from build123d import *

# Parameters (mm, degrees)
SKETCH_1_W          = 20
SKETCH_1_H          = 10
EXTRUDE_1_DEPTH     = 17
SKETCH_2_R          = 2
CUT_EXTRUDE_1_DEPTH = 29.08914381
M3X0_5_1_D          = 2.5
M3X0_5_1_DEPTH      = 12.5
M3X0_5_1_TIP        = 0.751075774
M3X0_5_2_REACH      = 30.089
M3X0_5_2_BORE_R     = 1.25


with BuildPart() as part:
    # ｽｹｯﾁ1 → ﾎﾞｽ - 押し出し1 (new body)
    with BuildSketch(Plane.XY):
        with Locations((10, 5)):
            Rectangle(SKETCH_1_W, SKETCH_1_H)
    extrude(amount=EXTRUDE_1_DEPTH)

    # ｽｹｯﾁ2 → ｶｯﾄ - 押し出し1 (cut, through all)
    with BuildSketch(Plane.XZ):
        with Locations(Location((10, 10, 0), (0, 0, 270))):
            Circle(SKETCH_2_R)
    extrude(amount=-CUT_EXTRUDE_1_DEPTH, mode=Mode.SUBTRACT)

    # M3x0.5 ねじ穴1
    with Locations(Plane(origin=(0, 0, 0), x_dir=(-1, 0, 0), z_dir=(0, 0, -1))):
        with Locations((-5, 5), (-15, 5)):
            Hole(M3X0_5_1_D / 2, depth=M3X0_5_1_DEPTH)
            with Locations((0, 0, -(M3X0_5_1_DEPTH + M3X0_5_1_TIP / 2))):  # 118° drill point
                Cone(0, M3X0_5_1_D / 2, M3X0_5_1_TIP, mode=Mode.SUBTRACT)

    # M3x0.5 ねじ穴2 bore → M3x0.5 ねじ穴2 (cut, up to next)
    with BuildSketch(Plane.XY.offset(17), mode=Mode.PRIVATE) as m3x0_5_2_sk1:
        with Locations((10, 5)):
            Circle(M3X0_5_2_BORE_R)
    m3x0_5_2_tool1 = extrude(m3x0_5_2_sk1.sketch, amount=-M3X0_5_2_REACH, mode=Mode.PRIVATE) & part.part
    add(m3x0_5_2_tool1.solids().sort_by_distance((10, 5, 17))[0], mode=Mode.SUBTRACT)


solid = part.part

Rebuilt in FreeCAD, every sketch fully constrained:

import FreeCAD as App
import Part
import Sketcher


def add_polygon(sketch, points):
    """Adds a closed chain of lines whose ends are joined by coincident constraints."""
    first, n = sketch.GeometryCount, len(points)
    for a, b in zip(points, points[1:] + points[:1]):
        sketch.addGeometry(Part.LineSegment(App.Vector(*a, 0), App.Vector(*b, 0)), False)
    for i in range(n):
        sketch.addConstraint(Sketcher.Constraint("Coincident", first + i, 2, first + (i + 1) % n, 1))

doc = App.newDocument("Part")
body = doc.addObject("PartDesign::Body", "Body")

# Sketch on XY plane
sketch1 = doc.addObject("Sketcher::SketchObject", "Sketch")
body.addObject(sketch1)
sketch1.AttachmentSupport = (doc.XY_Plane, [""])
sketch1.MapMode = "FlatFace"
add_polygon(sketch1, [(0, 10), (0, 0), (20, 0), (20, 10)])  # lines 0-3
sketch1.addConstraint(Sketcher.Constraint("Vertical", 0))
sketch1.addConstraint(Sketcher.Constraint("Horizontal", 1))
sketch1.addConstraint(Sketcher.Constraint("Vertical", 2))
sketch1.addConstraint(Sketcher.Constraint("Horizontal", 3))
sketch1.addConstraint(Sketcher.Constraint("Coincident", 0, 2, -1, 1))
sketch1.addConstraint(Sketcher.Constraint("DistanceX", 1, 1, 1, 2, 20.0))
sketch1.addConstraint(Sketcher.Constraint("DistanceY", 0, 2, 0, 1, 10.0))
pad1 = doc.addObject("PartDesign::Pad", "Pad")
body.addObject(pad1)
pad1.Profile = sketch1
pad1.Length = 17

# Sketch on XZ plane
sketch2 = doc.addObject("Sketcher::SketchObject", "Sketch001")
body.addObject(sketch2)
sketch2.AttachmentSupport = (doc.XZ_Plane, [""])
sketch2.MapMode = "FlatFace"
sketch2.addGeometry(Part.Circle(App.Vector(10, 10, 0), App.Vector(0, 0, 1), 2), False)
sketch2.addConstraint(Sketcher.Constraint("Diameter", 0, 4.0))
sketch2.addConstraint(Sketcher.Constraint("DistanceX", -1, 1, 0, 3, 10.0))
sketch2.addConstraint(Sketcher.Constraint("DistanceY", -1, 1, 0, 3, 10.0))
pocket1 = doc.addObject("PartDesign::Pocket", "Pocket")
body.addObject(pocket1)
pocket1.Profile = sketch2
pocket1.Type = "ThroughAll"

# Sketch on XY plane
sketch3 = doc.addObject("Sketcher::SketchObject", "Sketch002")
body.addObject(sketch3)
sketch3.AttachmentSupport = (doc.XY_Plane, [""])
sketch3.MapMode = "FlatFace"
sketch3.addGeometry(Part.Circle(App.Vector(5, 5, 0), App.Vector(0, 0, 1), 1.25), False)
sketch3.addGeometry(Part.Circle(App.Vector(15, 5, 0), App.Vector(0, 0, 1), 1.25), False)
sketch3.addConstraint(Sketcher.Constraint("Equal", 0, 1))
sketch3.addConstraint(Sketcher.Constraint("Horizontal", 0, 3, 1, 3))
sketch3.addConstraint(Sketcher.Constraint("Diameter", 0, 2.5))
sketch3.addConstraint(Sketcher.Constraint("DistanceX", -1, 1, 0, 3, 5.0))
sketch3.addConstraint(Sketcher.Constraint("DistanceY", -1, 1, 0, 3, 5.0))
sketch3.addConstraint(Sketcher.Constraint("DistanceX", -1, 1, 1, 3, 15.0))
doc.recompute()
hole = doc.addObject("PartDesign::Hole", "Hole")
body.addObject(hole)
hole.Profile = sketch3
hole.ThreadType = "None"
hole.Diameter = 2.5
hole.DepthType = "Dimension"
hole.Depth = 12.5
hole.DrillPoint = "Angled"
hole.DrillPointAngle = 118
hole.Reversed = True

# Sketch on XY plane
sketch4 = doc.addObject("Sketcher::SketchObject", "Sketch003")
body.addObject(sketch4)
sketch4.AttachmentSupport = (doc.XY_Plane, [""])
sketch4.MapMode = "FlatFace"
sketch4.AttachmentOffset = App.Placement(App.Vector(0, 0, 17), App.Rotation())
sketch4.addGeometry(Part.Circle(App.Vector(10, 5, 0), App.Vector(0, 0, 1), 1.25), False)
sketch4.addConstraint(Sketcher.Constraint("Diameter", 0, 2.5))
sketch4.addConstraint(Sketcher.Constraint("DistanceX", -1, 1, 0, 3, 10.0))
sketch4.addConstraint(Sketcher.Constraint("DistanceY", -1, 1, 0, 3, 5.0))
pocket2 = doc.addObject("PartDesign::Pocket", "Pocket001")
body.addObject(pocket2)
pocket2.Profile = sketch4
pocket2.Type = "UpToFirst"

doc.recompute()
